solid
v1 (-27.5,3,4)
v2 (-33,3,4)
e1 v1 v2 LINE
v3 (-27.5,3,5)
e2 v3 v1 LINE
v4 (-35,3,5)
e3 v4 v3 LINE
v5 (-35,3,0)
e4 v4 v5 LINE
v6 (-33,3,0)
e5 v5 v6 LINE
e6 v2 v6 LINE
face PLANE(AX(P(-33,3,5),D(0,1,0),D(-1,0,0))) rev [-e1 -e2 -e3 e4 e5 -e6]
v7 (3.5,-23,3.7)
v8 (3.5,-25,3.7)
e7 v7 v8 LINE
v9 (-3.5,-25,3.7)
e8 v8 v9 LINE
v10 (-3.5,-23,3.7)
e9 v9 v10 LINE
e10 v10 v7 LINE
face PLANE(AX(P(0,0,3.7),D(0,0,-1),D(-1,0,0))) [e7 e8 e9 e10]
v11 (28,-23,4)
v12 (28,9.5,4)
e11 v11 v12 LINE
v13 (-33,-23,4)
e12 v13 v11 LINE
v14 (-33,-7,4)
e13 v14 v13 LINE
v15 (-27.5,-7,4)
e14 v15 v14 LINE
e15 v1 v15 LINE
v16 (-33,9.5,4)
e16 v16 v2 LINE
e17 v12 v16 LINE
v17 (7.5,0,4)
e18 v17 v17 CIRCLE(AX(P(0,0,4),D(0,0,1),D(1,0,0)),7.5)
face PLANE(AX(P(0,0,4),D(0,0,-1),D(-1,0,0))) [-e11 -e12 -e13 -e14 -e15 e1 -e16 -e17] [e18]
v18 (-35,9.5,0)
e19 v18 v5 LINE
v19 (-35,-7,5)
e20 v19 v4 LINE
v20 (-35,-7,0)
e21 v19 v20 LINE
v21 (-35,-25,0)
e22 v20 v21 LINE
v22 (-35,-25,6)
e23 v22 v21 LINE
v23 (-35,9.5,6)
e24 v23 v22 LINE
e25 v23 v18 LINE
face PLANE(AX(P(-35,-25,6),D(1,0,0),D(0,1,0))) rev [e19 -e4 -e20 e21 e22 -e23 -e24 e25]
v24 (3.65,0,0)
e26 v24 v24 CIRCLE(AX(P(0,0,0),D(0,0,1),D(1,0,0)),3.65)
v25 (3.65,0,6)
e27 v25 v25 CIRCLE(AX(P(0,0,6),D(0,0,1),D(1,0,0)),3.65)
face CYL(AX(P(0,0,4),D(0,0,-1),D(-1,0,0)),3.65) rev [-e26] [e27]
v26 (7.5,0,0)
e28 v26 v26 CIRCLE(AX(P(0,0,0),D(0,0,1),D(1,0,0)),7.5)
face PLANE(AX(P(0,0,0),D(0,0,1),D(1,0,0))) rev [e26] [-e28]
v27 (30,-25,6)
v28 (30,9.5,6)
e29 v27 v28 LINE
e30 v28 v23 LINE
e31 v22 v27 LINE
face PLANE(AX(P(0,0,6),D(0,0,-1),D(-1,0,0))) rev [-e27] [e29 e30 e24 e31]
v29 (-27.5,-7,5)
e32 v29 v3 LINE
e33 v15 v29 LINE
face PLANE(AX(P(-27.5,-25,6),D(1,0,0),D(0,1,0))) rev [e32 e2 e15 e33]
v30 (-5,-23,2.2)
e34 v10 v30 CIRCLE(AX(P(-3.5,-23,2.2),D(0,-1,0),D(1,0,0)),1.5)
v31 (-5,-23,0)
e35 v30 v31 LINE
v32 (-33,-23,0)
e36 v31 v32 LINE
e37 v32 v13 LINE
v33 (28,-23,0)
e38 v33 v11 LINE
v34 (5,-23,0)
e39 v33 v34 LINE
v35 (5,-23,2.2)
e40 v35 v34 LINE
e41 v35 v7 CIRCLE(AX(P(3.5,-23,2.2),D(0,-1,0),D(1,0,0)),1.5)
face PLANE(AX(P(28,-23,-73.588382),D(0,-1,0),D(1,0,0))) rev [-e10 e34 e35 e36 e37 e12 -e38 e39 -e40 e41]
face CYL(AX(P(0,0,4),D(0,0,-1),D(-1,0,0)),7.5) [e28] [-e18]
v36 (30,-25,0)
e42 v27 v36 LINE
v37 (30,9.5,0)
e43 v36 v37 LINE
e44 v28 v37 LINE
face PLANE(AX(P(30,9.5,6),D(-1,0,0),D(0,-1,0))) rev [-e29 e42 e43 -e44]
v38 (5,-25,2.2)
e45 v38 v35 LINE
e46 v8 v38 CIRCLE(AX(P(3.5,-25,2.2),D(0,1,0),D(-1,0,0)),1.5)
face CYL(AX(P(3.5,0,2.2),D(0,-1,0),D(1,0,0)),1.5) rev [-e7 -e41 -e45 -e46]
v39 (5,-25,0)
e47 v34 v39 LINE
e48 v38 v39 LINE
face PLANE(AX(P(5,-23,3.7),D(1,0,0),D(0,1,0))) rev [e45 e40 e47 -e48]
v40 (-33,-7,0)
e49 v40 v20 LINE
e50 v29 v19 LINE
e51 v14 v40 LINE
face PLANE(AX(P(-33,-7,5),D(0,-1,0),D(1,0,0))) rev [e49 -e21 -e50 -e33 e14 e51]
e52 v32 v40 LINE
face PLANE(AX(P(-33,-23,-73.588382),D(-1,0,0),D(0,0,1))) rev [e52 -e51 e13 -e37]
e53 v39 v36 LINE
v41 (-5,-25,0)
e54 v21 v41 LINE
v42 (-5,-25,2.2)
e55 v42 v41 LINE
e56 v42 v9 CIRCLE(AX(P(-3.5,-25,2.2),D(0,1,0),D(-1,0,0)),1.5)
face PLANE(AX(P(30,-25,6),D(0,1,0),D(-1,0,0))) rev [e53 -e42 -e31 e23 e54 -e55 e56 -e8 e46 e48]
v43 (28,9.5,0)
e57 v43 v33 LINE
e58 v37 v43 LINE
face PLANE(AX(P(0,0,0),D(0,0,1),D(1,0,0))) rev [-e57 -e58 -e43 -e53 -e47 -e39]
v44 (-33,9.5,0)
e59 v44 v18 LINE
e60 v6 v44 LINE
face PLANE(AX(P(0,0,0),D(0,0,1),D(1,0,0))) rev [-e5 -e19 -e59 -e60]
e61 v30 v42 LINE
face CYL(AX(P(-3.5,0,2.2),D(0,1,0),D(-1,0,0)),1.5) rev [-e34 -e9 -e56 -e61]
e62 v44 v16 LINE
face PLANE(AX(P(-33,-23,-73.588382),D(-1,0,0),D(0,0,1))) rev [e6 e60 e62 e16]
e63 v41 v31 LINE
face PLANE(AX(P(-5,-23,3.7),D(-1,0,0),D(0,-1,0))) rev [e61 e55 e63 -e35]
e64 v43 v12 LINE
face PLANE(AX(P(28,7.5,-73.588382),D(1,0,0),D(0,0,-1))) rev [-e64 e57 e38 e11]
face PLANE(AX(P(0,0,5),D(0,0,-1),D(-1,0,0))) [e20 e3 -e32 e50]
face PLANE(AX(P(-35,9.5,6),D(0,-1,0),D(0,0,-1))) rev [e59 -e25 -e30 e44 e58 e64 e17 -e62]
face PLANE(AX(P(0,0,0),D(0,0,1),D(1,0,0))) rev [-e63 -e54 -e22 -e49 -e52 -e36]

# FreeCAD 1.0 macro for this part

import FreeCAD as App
import Part
import Sketcher

V = App.Vector


def edges_at(feature, points):
    """Names of the edges that pass closest to the given points."""
    edges = feature.Shape.Edges
    near = lambda p: min(range(len(edges)), key=lambda i: edges[i].distToShape(Part.Vertex(*p))[0])
    return sorted({f"Edge{near(p) + 1}" for p in points})


def add_polygon(sketch, points):
    """Adds a closed chain of lines whose ends are joined by coincident constraints."""
    first, n = sketch.GeometryCount, len(points)
    for a, b in zip(points, points[1:] + points[:1]):
        sketch.addGeometry(Part.LineSegment(App.Vector(*a, 0), App.Vector(*b, 0)), False)
    for i in range(n):
        sketch.addConstraint(Sketcher.Constraint("Coincident", first + i, 2, first + (i + 1) % n, 1))

doc = App.newDocument("Part")
body = doc.addObject("PartDesign::Body", "Body")

sketch1 = body.newObject("Sketcher::SketchObject", "Sketch")
sketch1.AttachmentSupport = (doc.getObject("XY_Plane"), [""])
sketch1.MapMode = "FlatFace"
sketch1.addGeometry([
    Part.Circle(V(0, 0, 0), V(0, 0, 1), 7.5),
    Part.Circle(V(0, 0, 0), V(0, 0, 1), 3.6),
], False)
sketch1.addConstraint([
    Sketcher.Constraint("Coincident", 0, 3, -1, 1),
    Sketcher.Constraint("Coincident", 1, 3, -1, 1),
    Sketcher.Constraint("Diameter", 0, 15.0),
    Sketcher.Constraint("Diameter", 1, 7.3),
])
pad1 = body.newObject("PartDesign::Pad", "Pad")
pad1.Profile = sketch1
pad1.Length = 4

sketch2 = body.newObject("Sketcher::SketchObject", "Sketch001")
sketch2.AttachmentSupport = (doc.getObject("XY_Plane"), [""])
sketch2.MapMode = "FlatFace"
sketch2.AttachmentOffset = App.Placement(V(0, 0, 4), App.Rotation())
add_polygon(sketch2, [(-35, 9.5), (-35, -25), (30, -25), (30, 9.5)])
sketch2.addGeometry(Part.Circle(V(0, 0, 0), V(0, 0, 1), 3.6), False)
sketch2.addConstraint([
    Sketcher.Constraint("Vertical", 0),
    Sketcher.Constraint("Horizontal", 1),
    Sketcher.Constraint("Vertical", 2),
    Sketcher.Constraint("Horizontal", 3),
    Sketcher.Constraint("Coincident", 4, 3, -1, 1),
    Sketcher.Constraint("Diameter", 4, 7.3),
    Sketcher.Constraint("DistanceX", 1, 1, 1, 2, 65.0),
    Sketcher.Constraint("DistanceY", 0, 2, 0, 1, 34.5),
    Sketcher.Constraint("DistanceX", 0, 2, -1, 1, 35.0),
    Sketcher.Constraint("DistanceY", 0, 2, -1, 1, 25.0),
])
pad2 = body.newObject("PartDesign::Pad", "Pad001")
pad2.Profile = sketch2
pad2.Length = 2

sketch3 = body.newObject("Sketcher::SketchObject", "Sketch002")
sketch3.AttachmentSupport = (doc.getObject("XY_Plane"), [""])
sketch3.MapMode = "FlatFace"
sketch3.AttachmentOffset = App.Placement(V(0, 0, 4), App.Rotation())
add_polygon(sketch3, [(28, -23), (28, 9.5), (30, 9.5), (30, -25), (-35, -25), (-35, 9.5), (-33, 9.5), (-33, -23)])
sketch3.addConstraint([
    Sketcher.Constraint("Vertical", 0),
    Sketcher.Constraint("Horizontal", 1),
    Sketcher.Constraint("Vertical", 2),
    Sketcher.Constraint("Horizontal", 3),
    Sketcher.Constraint("Vertical", 4),
    Sketcher.Constraint("Horizontal", 5),
    Sketcher.Constraint("Vertical", 6),
    Sketcher.Constraint("Horizontal", 7),
    Sketcher.Constraint("Horizontal", 1, 2, 4, 2),
    Sketcher.Constraint("Equal", 1, 5),
    Sketcher.Constraint("DistanceX", 1, 1, 1, 2, 2.0),
    Sketcher.Constraint("DistanceX", 3, 2, 3, 1, 65.0),
    Sketcher.Constraint("DistanceY", 0, 1, 0, 2, 32.5),
    Sketcher.Constraint("DistanceY", 2, 2, 2, 1, 34.5),
    Sketcher.Constraint("DistanceX", -1, 1, 0, 2, 28.0),
    Sketcher.Constraint("DistanceY", 2, 2, -1, 1, 25.0),
])
pad3 = body.newObject("PartDesign::Pad", "Pad002")
pad3.Profile = sketch3
pad3.Length = 4
pad3.Reversed = True

sketch4 = body.newObject("Sketcher::SketchObject", "Sketch003")
sketch4.AttachmentSupport = (doc.getObject("XY_Plane"), [""])
sketch4.MapMode = "FlatFace"
add_polygon(sketch4, [(5, -23), (5, -25), (-5, -25), (-5, -23)])
sketch4.addConstraint([
    Sketcher.Constraint("Vertical", 0),
    Sketcher.Constraint("Horizontal", 1),
    Sketcher.Constraint("Vertical", 2),
    Sketcher.Constraint("Horizontal", 3),
    Sketcher.Constraint("DistanceX", 1, 2, 1, 1, 10.0),
    Sketcher.Constraint("DistanceY", 0, 2, 0, 1, 2.0),
    Sketcher.Constraint("DistanceX", -1, 1, 0, 2, 5.0),
    Sketcher.Constraint("DistanceY", 0, 2, -1, 1, 25.0),
])
pocket1 = body.newObject("PartDesign::Pocket", "Pocket")
pocket1.Profile = sketch4
pocket1.Length = 3.7
pocket1.Reversed = True
doc.recompute()

fillet = body.newObject("PartDesign::Fillet", "Fillet")
fillet.Base = (pocket1, edges_at(pocket1, [(5, -24, 3.7), (-5, -24, 3.7)]))
fillet.Radius = 1.5

sketch5 = body.newObject("Sketcher::SketchObject", "Sketch004")
sketch5.AttachmentSupport = (doc.getObject("XY_Plane"), [""])
sketch5.MapMode = "FlatFace"
add_polygon(sketch5, [(-33, 3), (-33, -7), (-35, -7), (-35, 3)])
sketch5.addConstraint([
    Sketcher.Constraint("Vertical", 0),
    Sketcher.Constraint("Horizontal", 1),
    Sketcher.Constraint("Vertical", 2),
    Sketcher.Constraint("Horizontal", 3),
    Sketcher.Constraint("DistanceX", 1, 2, 1, 1, 2.0),
    Sketcher.Constraint("DistanceY", 0, 2, 0, 1, 10.0),
    Sketcher.Constraint("DistanceX", 0, 2, -1, 1, 33.0),
    Sketcher.Constraint("DistanceY", 0, 2, -1, 1, 7.0),
])
pocket2 = body.newObject("PartDesign::Pocket", "Pocket001")
pocket2.Profile = sketch5
pocket2.Length = 5
pocket2.Reversed = True

sketch6 = body.newObject("Sketcher::SketchObject", "Sketch005")
sketch6.AttachmentSupport = (doc.getObject("YZ_Plane"), [""])
sketch6.MapMode = "FlatFace"
sketch6.AttachmentOffset = App.Placement(V(0, 0, -33), App.Rotation())
add_polygon(sketch6, [(3, 4), (-7, 4), (-7, 5), (3, 5)])
sketch6.addConstraint([
    Sketcher.Constraint("Horizontal", 0),
    Sketcher.Constraint("Vertical", 1),
    Sketcher.Constraint("Horizontal", 2),
    Sketcher.Constraint("Vertical", 3),
    Sketcher.Constraint("DistanceX", 0, 2, 0, 1, 10.0),
    Sketcher.Constraint("DistanceY", 1, 1, 1, 2, 1.0),
    Sketcher.Constraint("DistanceX", 0, 2, -1, 1, 7.0),
    Sketcher.Constraint("DistanceY", -1, 1, 0, 2, 4.0),
])
pocket3 = body.newObject("PartDesign::Pocket", "Pocket002")
pocket3.Profile = sketch6
pocket3.Length = 5.5
pocket3.Reversed = True

doc.recompute()
